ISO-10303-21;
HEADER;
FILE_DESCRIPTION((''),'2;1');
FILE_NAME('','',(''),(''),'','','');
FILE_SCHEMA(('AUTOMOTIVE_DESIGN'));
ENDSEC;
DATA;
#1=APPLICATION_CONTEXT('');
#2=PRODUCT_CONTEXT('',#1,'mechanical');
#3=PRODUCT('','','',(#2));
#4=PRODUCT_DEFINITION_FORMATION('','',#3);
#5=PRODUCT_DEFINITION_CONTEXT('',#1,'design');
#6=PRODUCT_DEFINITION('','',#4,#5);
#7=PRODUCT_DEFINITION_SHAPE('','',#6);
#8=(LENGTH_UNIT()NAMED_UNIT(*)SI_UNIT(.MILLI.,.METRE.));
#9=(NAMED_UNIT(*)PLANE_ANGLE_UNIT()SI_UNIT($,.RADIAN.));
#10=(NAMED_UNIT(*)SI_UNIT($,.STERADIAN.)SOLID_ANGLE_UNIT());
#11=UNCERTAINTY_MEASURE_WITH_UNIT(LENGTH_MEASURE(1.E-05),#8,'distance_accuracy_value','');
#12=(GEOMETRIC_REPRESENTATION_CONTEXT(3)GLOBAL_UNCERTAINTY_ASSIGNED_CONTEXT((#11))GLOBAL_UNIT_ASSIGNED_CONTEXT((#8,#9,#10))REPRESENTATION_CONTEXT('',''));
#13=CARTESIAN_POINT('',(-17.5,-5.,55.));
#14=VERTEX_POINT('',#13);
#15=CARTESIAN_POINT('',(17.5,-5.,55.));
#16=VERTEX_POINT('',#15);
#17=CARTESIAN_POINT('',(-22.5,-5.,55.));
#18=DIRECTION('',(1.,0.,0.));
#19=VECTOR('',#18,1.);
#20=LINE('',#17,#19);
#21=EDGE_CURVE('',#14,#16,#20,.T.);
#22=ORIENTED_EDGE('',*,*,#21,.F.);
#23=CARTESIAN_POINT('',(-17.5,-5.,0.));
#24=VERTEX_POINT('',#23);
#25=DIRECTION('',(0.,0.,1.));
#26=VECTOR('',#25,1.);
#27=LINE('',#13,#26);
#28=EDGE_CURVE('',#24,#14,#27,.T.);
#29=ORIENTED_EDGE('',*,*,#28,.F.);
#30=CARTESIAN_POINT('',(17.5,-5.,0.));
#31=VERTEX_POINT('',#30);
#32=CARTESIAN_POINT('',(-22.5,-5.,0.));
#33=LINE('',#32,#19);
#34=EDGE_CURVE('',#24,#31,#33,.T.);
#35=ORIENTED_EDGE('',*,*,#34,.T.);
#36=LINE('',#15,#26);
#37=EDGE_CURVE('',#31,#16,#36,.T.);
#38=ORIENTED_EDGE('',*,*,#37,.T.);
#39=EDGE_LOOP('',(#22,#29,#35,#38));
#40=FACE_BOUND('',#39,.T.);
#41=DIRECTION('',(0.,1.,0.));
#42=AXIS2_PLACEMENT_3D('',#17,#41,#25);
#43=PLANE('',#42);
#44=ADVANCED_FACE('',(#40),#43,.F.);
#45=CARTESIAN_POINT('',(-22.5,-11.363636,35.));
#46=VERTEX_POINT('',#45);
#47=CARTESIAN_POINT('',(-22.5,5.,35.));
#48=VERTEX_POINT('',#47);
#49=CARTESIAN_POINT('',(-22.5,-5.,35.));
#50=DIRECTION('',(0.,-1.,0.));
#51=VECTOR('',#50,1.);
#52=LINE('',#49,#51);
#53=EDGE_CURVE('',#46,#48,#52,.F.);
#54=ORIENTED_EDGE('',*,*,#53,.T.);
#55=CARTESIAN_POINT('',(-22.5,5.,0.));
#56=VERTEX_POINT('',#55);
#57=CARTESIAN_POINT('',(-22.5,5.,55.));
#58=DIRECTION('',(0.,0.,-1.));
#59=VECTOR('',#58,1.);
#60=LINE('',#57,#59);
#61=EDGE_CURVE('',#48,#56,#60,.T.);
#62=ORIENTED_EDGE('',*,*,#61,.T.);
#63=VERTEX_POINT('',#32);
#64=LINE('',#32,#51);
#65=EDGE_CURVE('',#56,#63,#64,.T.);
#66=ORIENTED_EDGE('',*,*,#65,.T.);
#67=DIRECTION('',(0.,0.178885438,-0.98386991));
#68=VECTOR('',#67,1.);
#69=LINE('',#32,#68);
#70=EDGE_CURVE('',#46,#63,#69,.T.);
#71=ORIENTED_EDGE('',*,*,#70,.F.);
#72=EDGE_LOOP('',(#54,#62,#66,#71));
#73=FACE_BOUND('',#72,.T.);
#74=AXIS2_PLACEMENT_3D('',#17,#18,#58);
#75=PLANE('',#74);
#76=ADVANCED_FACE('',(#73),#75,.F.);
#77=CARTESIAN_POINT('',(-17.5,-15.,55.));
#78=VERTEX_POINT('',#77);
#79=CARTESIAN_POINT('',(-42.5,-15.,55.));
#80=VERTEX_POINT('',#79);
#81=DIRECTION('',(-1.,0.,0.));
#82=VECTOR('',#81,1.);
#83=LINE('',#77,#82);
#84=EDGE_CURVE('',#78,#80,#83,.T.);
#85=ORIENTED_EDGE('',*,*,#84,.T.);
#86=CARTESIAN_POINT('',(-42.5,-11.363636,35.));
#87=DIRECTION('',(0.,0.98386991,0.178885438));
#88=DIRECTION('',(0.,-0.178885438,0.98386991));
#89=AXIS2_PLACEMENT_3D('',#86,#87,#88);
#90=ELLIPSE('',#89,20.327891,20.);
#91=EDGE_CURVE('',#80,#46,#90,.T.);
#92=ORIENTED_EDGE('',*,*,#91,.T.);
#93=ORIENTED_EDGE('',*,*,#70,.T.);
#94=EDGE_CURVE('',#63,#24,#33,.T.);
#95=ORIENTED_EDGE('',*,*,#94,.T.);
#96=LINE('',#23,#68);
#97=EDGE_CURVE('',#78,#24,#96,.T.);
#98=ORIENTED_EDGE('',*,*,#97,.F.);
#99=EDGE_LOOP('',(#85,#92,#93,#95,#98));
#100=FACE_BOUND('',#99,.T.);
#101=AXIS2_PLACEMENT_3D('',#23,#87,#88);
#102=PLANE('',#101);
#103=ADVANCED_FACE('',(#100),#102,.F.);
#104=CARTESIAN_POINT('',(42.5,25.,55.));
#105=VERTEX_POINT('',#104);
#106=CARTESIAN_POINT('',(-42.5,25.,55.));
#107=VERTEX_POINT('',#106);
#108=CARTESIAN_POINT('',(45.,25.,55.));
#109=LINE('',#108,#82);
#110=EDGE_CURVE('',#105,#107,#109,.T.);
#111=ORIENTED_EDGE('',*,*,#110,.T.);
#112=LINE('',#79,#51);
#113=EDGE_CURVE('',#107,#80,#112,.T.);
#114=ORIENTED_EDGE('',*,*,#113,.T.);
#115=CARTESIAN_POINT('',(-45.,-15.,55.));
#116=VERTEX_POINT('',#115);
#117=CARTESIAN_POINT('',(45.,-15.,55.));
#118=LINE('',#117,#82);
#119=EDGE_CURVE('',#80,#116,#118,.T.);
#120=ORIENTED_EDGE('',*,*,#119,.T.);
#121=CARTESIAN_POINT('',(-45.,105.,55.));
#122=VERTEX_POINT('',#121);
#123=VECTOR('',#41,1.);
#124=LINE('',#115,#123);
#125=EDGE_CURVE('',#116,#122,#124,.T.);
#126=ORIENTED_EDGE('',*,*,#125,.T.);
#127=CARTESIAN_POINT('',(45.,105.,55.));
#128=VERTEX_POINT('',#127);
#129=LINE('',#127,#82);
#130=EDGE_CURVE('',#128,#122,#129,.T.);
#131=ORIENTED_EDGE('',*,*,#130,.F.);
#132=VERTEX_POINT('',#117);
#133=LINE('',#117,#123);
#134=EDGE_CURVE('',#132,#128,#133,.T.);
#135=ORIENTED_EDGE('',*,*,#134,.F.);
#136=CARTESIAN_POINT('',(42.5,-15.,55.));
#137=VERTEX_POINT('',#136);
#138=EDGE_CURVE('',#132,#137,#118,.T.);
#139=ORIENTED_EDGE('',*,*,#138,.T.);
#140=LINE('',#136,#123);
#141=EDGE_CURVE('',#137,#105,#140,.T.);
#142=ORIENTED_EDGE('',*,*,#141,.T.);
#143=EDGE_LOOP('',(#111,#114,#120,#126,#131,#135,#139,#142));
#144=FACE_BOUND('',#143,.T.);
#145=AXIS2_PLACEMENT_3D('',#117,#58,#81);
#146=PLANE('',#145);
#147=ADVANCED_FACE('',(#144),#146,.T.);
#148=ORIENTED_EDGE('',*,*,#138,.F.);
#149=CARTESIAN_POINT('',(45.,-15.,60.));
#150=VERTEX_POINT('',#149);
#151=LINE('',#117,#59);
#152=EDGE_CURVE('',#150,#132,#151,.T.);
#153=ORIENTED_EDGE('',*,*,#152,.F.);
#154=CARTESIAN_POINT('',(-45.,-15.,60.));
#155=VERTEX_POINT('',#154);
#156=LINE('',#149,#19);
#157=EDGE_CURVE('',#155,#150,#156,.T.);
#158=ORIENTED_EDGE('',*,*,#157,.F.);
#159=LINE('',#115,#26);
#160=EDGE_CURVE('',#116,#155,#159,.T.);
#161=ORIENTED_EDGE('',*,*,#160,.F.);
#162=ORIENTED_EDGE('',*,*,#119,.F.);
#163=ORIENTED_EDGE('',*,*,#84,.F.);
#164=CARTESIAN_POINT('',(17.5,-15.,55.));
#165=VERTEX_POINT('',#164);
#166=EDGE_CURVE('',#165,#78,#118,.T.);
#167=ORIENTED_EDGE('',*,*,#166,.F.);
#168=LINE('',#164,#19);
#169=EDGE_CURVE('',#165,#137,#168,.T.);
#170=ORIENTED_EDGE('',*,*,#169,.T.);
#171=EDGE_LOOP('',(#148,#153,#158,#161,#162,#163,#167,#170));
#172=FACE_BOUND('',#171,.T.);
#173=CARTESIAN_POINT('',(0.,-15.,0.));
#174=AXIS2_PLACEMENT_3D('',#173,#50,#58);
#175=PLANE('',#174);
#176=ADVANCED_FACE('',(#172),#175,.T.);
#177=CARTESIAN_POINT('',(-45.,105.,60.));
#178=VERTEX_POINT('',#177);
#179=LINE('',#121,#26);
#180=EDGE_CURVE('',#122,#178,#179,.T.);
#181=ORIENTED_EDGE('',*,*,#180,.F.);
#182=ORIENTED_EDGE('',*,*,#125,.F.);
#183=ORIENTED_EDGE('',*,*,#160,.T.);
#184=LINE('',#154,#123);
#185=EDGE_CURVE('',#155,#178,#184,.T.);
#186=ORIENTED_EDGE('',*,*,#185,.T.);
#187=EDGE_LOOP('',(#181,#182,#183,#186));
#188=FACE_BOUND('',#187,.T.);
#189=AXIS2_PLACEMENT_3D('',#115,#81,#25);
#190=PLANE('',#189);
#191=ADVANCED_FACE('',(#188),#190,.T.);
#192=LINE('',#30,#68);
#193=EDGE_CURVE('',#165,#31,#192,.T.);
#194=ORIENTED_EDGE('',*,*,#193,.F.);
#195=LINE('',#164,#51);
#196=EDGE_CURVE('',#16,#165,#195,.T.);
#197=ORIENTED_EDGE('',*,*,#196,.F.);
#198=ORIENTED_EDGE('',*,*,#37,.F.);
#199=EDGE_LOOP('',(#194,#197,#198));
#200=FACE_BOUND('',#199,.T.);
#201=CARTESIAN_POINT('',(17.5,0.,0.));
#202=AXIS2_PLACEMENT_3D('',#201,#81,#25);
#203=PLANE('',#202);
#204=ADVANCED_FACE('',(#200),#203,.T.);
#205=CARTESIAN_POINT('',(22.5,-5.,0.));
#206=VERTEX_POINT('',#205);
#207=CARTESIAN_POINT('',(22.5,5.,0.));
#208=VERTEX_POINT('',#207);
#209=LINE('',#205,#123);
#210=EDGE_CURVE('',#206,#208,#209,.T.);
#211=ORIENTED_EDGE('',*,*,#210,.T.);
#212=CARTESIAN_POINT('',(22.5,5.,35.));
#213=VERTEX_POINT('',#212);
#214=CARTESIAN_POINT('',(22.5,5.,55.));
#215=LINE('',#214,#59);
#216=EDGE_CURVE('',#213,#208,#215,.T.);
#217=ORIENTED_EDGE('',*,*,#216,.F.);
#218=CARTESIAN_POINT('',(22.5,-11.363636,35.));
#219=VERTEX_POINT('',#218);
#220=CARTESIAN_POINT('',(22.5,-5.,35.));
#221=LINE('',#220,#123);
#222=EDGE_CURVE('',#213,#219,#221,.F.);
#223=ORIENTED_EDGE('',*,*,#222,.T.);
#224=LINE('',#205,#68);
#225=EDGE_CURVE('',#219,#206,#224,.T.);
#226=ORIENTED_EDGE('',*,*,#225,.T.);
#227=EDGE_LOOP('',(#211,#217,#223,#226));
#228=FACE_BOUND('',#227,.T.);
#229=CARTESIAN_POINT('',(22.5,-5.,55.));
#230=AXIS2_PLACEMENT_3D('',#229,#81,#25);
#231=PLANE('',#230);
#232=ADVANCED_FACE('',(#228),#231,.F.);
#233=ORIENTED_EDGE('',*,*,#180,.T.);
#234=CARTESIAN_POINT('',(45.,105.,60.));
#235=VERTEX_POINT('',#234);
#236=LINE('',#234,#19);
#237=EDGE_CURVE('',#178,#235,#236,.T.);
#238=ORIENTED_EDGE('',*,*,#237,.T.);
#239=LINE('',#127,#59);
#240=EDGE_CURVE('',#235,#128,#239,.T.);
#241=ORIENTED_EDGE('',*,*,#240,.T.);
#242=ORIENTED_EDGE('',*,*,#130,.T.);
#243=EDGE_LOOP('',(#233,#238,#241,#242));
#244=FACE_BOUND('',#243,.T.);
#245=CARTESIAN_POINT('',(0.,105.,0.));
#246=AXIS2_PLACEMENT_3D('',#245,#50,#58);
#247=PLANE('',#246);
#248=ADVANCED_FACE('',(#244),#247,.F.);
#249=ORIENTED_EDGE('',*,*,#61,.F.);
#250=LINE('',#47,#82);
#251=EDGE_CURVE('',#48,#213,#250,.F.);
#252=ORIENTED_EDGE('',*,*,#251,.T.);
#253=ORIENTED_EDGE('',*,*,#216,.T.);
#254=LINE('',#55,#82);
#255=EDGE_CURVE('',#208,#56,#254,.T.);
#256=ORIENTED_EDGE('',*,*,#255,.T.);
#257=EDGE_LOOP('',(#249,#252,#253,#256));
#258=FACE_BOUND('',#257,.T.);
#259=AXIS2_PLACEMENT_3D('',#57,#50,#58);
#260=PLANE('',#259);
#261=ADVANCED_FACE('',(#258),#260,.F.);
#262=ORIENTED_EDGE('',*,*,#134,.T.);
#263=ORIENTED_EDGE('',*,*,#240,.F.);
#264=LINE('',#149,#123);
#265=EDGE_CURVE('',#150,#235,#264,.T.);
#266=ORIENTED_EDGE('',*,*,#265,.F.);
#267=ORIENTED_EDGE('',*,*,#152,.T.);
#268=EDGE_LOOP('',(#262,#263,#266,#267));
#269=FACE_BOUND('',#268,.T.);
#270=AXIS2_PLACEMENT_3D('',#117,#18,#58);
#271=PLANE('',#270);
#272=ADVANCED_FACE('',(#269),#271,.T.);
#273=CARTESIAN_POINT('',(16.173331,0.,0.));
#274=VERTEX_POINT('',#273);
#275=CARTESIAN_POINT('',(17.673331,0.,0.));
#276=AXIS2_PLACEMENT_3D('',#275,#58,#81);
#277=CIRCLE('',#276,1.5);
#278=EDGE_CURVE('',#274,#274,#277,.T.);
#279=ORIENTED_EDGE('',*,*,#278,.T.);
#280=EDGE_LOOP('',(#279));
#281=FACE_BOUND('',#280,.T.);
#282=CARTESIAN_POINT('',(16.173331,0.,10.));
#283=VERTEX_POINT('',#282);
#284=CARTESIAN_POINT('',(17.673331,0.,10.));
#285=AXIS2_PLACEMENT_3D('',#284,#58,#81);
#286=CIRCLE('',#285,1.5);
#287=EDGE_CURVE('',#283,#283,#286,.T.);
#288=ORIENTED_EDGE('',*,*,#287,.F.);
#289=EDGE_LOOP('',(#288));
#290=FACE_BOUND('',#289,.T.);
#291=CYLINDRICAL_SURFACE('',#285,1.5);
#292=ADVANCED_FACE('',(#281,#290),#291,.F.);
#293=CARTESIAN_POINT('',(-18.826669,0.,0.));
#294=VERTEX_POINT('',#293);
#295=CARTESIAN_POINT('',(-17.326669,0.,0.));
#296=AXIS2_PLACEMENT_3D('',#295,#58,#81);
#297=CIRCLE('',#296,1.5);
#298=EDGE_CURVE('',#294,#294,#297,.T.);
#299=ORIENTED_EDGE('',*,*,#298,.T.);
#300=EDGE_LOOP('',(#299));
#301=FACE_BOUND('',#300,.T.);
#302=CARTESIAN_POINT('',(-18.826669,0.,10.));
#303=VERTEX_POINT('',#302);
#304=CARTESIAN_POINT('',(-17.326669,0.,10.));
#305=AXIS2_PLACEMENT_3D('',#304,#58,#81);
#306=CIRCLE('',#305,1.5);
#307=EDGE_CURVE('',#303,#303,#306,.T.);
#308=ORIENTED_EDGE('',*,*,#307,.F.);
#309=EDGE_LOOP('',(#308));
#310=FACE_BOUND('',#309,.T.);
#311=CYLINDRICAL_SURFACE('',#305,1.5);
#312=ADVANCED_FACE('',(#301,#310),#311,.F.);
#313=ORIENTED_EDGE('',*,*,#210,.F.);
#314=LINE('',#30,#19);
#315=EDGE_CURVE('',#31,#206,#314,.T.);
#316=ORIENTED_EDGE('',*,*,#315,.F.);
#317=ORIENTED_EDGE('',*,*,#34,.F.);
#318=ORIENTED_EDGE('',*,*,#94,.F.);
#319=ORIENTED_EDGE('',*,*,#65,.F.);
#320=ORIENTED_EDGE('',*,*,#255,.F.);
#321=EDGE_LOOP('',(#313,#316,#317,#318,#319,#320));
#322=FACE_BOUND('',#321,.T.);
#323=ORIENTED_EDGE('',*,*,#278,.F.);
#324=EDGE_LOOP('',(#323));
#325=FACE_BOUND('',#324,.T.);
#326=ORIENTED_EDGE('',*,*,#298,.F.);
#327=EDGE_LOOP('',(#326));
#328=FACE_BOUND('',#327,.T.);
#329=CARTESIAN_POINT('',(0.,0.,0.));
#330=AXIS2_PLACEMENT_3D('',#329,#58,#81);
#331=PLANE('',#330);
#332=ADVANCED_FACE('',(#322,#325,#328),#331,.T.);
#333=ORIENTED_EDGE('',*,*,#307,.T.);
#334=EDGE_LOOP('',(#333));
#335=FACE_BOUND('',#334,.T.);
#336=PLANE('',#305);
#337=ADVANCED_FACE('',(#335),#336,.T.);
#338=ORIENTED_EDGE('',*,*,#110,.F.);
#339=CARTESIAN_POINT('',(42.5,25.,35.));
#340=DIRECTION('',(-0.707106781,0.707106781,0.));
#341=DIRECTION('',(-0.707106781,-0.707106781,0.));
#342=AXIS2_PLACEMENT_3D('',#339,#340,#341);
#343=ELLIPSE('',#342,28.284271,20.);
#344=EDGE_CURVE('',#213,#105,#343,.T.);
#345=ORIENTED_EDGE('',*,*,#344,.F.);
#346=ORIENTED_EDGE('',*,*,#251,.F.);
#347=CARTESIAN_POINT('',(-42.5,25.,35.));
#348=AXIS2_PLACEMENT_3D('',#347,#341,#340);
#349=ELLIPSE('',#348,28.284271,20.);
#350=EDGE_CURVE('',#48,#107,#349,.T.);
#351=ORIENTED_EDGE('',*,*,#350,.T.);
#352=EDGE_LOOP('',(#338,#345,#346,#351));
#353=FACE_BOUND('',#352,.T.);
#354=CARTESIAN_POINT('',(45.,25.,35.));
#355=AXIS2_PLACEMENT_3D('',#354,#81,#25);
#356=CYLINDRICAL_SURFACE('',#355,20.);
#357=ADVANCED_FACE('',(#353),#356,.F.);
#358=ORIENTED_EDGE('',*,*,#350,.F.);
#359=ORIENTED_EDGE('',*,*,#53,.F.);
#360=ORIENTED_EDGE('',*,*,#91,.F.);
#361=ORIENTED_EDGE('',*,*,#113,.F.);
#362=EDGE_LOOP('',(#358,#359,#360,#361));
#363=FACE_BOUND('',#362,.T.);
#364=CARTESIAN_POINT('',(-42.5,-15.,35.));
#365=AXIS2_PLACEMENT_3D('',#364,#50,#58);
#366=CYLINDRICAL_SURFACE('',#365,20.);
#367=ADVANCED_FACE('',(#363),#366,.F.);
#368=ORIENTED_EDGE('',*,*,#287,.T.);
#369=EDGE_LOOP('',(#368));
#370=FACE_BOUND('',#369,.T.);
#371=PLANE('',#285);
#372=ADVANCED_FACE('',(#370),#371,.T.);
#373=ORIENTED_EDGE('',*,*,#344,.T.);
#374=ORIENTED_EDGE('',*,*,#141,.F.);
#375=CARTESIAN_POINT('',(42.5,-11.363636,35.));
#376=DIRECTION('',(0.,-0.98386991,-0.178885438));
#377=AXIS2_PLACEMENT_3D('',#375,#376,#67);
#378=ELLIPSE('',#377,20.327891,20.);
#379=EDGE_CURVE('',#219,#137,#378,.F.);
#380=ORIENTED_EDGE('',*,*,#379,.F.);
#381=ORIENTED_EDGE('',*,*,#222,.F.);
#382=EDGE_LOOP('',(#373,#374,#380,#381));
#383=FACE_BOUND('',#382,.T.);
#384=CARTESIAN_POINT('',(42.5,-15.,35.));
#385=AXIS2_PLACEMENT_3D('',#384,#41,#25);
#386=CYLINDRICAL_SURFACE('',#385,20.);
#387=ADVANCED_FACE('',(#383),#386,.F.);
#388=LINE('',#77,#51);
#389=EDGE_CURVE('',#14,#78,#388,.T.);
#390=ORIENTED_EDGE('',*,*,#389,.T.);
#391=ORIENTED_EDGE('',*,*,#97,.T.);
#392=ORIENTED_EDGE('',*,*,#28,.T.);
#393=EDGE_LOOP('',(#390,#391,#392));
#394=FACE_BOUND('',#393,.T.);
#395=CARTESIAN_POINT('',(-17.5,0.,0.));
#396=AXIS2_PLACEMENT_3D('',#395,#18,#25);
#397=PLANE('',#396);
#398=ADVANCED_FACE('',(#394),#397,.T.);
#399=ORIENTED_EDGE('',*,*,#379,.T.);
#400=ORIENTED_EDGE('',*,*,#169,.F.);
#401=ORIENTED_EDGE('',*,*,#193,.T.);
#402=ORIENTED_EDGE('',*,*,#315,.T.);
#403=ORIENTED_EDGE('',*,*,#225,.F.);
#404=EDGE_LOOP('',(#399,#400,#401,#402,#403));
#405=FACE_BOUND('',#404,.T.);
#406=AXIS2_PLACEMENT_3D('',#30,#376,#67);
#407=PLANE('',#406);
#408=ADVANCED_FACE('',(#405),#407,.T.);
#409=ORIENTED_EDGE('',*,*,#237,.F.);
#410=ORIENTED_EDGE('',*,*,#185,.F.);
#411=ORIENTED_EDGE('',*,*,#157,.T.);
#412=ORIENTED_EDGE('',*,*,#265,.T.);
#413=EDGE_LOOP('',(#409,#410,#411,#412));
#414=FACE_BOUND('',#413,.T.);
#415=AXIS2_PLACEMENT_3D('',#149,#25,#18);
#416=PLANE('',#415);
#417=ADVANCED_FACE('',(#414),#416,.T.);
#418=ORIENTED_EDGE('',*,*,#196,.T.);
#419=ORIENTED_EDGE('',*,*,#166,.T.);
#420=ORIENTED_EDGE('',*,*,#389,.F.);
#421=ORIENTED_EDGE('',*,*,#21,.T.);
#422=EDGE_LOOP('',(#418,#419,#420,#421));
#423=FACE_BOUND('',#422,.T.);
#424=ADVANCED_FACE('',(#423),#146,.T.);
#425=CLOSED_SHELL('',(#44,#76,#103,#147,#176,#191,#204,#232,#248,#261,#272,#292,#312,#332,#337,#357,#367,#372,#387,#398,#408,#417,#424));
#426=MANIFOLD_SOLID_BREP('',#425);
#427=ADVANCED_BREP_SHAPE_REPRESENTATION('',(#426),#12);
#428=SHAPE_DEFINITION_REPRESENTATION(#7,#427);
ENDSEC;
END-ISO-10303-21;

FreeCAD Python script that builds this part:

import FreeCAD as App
import Part
import Sketcher
Q = App.Units.Quantity


def edges_at(feature, points):
    """Names of the edges that pass closest to the given points."""
    edges = feature.Shape.Edges
    near = lambda p: min(range(len(edges)), key=lambda i: edges[i].distToShape(Part.Vertex(*p))[0])
    return sorted({f"Edge{near(p) + 1}" for p in points})


def add_polygon(sketch, points):
    """Adds a closed chain of lines whose ends are joined by coincident constraints."""
    first, n = sketch.GeometryCount, len(points)
    for a, b in zip(points, points[1:] + points[:1]):
        sketch.addGeometry(Part.LineSegment(App.Vector(*a, 0), App.Vector(*b, 0)), False)
    for i in range(n):
        sketch.addConstraint(Sketcher.Constraint("Coincident", first + i, 2, first + (i + 1) % n, 1))

doc = App.newDocument("Part")
body = doc.addObject("PartDesign::Body", "Body")

# Sketch on XY plane
sketch1 = body.newObject("Sketcher::SketchObject", "Sketch")
sketch1.AttachmentSupport = (doc.getObject("XY_Plane"), [""])
sketch1.MapMode = "FlatFace"
add_polygon(sketch1, [(-22.5, 5), (-22.5, -5), (22.5, -5), (22.5, 5)])  # lines 0-3
sketch1.addConstraint([
    Sketcher.Constraint("Vertical", 0),
    Sketcher.Constraint("Horizontal", 1),
    Sketcher.Constraint("Vertical", 2),
    Sketcher.Constraint("Horizontal", 3),
    Sketcher.Constraint("Symmetric", 0, 2, 2, 2, -1, 1),
    Sketcher.Constraint("DistanceX", 1, 1, 1, 2, Q("45 mm")),
    Sketcher.Constraint("DistanceY", 0, 2, 0, 1, Q("10 mm")),
])
pad1 = body.newObject("PartDesign::Pad", "Pad")
pad1.Profile = sketch1
pad1.Length = 55

# Sketch on XZ plane
sketch2 = body.newObject("Sketcher::SketchObject", "Sketch001")
sketch2.AttachmentSupport = (doc.getObject("XZ_Plane"), [""])
sketch2.MapMode = "FlatFace"
sketch2.AttachmentOffset = App.Placement(App.Vector(0, 0, -5), App.Rotation())
add_polygon(sketch2, [(-45, 55), (-45, 60), (45, 60), (45, 55)])  # lines 0-3
sketch2.addConstraint([
    Sketcher.Constraint("Vertical", 0),
    Sketcher.Constraint("Horizontal", 1),
    Sketcher.Constraint("Vertical", 2),
    Sketcher.Constraint("Horizontal", 3),
    Sketcher.Constraint("DistanceX", 1, 1, 1, 2, Q("90 mm")),
    Sketcher.Constraint("DistanceY", 0, 1, 0, 2, Q("5 mm")),
    Sketcher.Constraint("DistanceX", 0, 2, -1, 1, Q("45 mm")),
    Sketcher.Constraint("DistanceY", -1, 1, 0, 2, Q("60 mm")),
])
pad2 = body.newObject("PartDesign::Pad", "Pad001")
pad2.Profile = sketch2
pad2.Type = "TwoLengths"
pad2.Length = 100
pad2.Length2 = 20
pad2.Reversed = True

# Sketch on YZ plane
sketch3 = body.newObject("Sketcher::SketchObject", "Sketch002")
sketch3.AttachmentSupport = (doc.getObject("YZ_Plane"), [""])
sketch3.MapMode = "FlatFace"
sketch3.AttachmentOffset = App.Placement(App.Vector(0, 0, 22.5), App.Rotation())
add_polygon(sketch3, [(-5, 0), (-5, 55), (-15, 55)])  # lines 0-2
sketch3.addConstraint([
    Sketcher.Constraint("Vertical", 0),
    Sketcher.Constraint("Horizontal", 1),
    Sketcher.Constraint("PointOnObject", 2, 2, -1),
    Sketcher.Constraint("DistanceX", 1, 2, 1, 1, Q("10 mm")),
    Sketcher.Constraint("DistanceY", 0, 1, 0, 2, Q("55 mm")),
    Sketcher.Constraint("DistanceX", 0, 2, -1, 1, Q("5 mm")),
])
pad3 = body.newObject("PartDesign::Pad", "Pad002")
pad3.Profile = sketch3
pad3.Length = 5
pad3.Reversed = True
doc.recompute()

mirrored = body.newObject("PartDesign::Mirrored", "Mirrored")
mirrored.Originals = [pad3]
mirrored.MirrorPlane = (doc.getObject("YZ_Plane"), [""])
body.Tip = mirrored
doc.recompute()

fillet = body.newObject("PartDesign::Fillet", "Fillet")
fillet.Base = (mirrored, edges_at(mirrored, [(-22.5, -5, 55), (22.5, -5, 55), (0, 5, 55)]))
fillet.Radius = 20

# Sketch on XY plane
sketch4 = body.newObject("Sketcher::SketchObject", "Sketch003")
sketch4.AttachmentSupport = (doc.getObject("XY_Plane"), [""])
sketch4.MapMode = "FlatFace"
sketch4.addGeometry([
    Part.Circle(App.Vector(17.673331, 0, 0), App.Vector(0, 0, 1), 1.5),
    Part.Circle(App.Vector(-17.326669, 0, 0), App.Vector(0, 0, 1), 1.5),
], False)
sketch4.addConstraint([
    Sketcher.Constraint("Equal", 0, 1),
    Sketcher.Constraint("PointOnObject", 0, 3, -1),
    Sketcher.Constraint("PointOnObject", 1, 3, -1),
    Sketcher.Constraint("Diameter", 0, Q("3 mm")),
    Sketcher.Constraint("DistanceX", 1, 3, 0, 3, Q("35 mm")),
    Sketcher.Constraint("DistanceX", -1, 1, 0, 3, Q("17.673331 mm")),
])
pocket1 = body.newObject("PartDesign::Pocket", "Pocket")
pocket1.Profile = sketch4
pocket1.Length = 10
pocket1.Reversed = True

doc.recompute()
